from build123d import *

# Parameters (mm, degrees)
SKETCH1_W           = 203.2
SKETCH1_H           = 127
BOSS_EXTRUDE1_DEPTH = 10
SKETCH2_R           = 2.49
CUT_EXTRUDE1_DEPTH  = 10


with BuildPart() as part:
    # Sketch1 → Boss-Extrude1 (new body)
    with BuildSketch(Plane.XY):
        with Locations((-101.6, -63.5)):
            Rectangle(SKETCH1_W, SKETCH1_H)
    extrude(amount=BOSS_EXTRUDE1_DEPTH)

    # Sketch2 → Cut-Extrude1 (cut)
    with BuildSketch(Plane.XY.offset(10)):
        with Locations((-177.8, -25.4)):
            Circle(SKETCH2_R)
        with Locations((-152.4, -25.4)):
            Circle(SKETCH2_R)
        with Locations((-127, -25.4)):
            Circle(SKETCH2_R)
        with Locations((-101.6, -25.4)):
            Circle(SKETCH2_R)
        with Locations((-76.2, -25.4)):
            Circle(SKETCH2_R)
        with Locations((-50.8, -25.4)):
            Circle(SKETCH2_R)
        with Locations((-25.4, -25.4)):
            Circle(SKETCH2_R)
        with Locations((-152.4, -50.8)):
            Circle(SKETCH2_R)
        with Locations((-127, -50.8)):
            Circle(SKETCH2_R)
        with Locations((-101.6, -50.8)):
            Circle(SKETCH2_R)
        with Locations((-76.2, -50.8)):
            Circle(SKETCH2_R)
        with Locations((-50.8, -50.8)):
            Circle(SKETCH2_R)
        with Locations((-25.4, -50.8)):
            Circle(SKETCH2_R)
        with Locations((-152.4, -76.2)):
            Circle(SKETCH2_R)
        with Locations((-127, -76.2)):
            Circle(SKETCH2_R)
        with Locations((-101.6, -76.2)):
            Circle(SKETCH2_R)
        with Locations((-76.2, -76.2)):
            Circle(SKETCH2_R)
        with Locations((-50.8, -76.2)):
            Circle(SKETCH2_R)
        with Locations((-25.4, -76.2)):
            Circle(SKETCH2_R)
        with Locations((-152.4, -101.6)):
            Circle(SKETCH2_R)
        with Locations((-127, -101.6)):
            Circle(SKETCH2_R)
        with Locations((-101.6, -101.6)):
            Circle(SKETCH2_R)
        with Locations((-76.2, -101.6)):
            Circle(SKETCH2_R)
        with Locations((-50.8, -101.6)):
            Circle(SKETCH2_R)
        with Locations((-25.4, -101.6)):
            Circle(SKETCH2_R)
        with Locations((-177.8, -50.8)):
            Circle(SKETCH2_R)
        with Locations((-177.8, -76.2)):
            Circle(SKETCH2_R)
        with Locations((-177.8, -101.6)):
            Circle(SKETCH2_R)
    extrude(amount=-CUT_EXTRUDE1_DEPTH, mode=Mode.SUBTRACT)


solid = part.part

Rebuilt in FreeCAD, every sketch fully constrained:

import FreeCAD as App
import Part
import Sketcher

V = App.Vector
Q = App.Units.Quantity

doc = App.newDocument("Part")
body = doc.addObject("PartDesign::Body", "Body")

sketch1 = body.newObject("Sketcher::SketchObject", "Sketch")
sketch1.AttachmentSupport = (doc.getObject("XY_Plane"), [""])
sketch1.MapMode = "FlatFace"
sketch1.addGeometry([
    Part.LineSegment(V(-203, 0, 0), V(-203, -127, 0)),
    Part.LineSegment(V(-203, -127, 0), V(0, -127, 0)),
    Part.LineSegment(V(0, -127, 0), V(0, 0, 0)),
    Part.LineSegment(V(0, 0, 0), V(-203, 0, 0)),
], False)
sketch1.addConstraint([
    Sketcher.Constraint("Coincident", 0, 2, 1, 1),
    Sketcher.Constraint("Coincident", 1, 2, 2, 1),
    Sketcher.Constraint("Coincident", 2, 2, 3, 1),
    Sketcher.Constraint("Coincident", 3, 2, 0, 1),
    Sketcher.Constraint("Vertical", 0),
    Sketcher.Constraint("Horizontal", 1),
    Sketcher.Constraint("Vertical", 2),
    Sketcher.Constraint("Horizontal", 3),
    Sketcher.Constraint("Coincident", 2, 2, -1, 1),
    Sketcher.Constraint("DistanceX", 1, 1, 1, 2, Q("8 in")),
    Sketcher.Constraint("DistanceY", 0, 2, 0, 1, Q("5 in")),
])
pad1 = body.newObject("PartDesign::Pad", "Pad")
pad1.Profile = sketch1
pad1.Length = 10

sketch2 = body.newObject("Sketcher::SketchObject", "Sketch001")
sketch2.AttachmentSupport = (doc.getObject("XY_Plane"), [""])
sketch2.MapMode = "FlatFace"
sketch2.AttachmentOffset = App.Placement(V(0, 0, 10), App.Rotation())
sketch2.addGeometry([
    Part.Circle(V(-177.8, -25.4, 0), V(0, 0, 1), 2.5),
    Part.Circle(V(-152.4, -25.4, 0), V(0, 0, 1), 2.5),
    Part.Circle(V(-127, -25.4, 0), V(0, 0, 1), 2.5),
    Part.Circle(V(-101.6, -25.4, 0), V(0, 0, 1), 2.5),
    Part.Circle(V(-76.2, -25.4, 0), V(0, 0, 1), 2.5),
    Part.Circle(V(-50.8, -25.4, 0), V(0, 0, 1), 2.5),
    Part.Circle(V(-25.4, -25.4, 0), V(0, 0, 1), 2.5),
    Part.Circle(V(-152.4, -50.8, 0), V(0, 0, 1), 2.5),
    Part.Circle(V(-127, -50.8, 0), V(0, 0, 1), 2.5),
    Part.Circle(V(-101.6, -50.8, 0), V(0, 0, 1), 2.5),
    Part.Circle(V(-76.2, -50.8, 0), V(0, 0, 1), 2.5),
    Part.Circle(V(-50.8, -50.8, 0), V(0, 0, 1), 2.5),
    Part.Circle(V(-25.4, -50.8, 0), V(0, 0, 1), 2.5),
    Part.Circle(V(-152.4, -76.2, 0), V(0, 0, 1), 2.5),
    Part.Circle(V(-127, -76.2, 0), V(0, 0, 1), 2.5),
    Part.Circle(V(-101.6, -76.2, 0), V(0, 0, 1), 2.5),
    Part.Circle(V(-76.2, -76.2, 0), V(0, 0, 1), 2.5),
    Part.Circle(V(-50.8, -76.2, 0), V(0, 0, 1), 2.5),
    Part.Circle(V(-25.4, -76.2, 0), V(0, 0, 1), 2.5),
    Part.Circle(V(-152.4, -101.6, 0), V(0, 0, 1), 2.5),
    Part.Circle(V(-127, -101.6, 0), V(0, 0, 1), 2.5),
    Part.Circle(V(-101.6, -101.6, 0), V(0, 0, 1), 2.5),
    Part.Circle(V(-76.2, -101.6, 0), V(0, 0, 1), 2.5),
    Part.Circle(V(-50.8, -101.6, 0), V(0, 0, 1), 2.5),
    Part.Circle(V(-25.4, -101.6, 0), V(0, 0, 1), 2.5),
    Part.Circle(V(-177.8, -50.8, 0), V(0, 0, 1), 2.5),
    Part.Circle(V(-177.8, -76.2, 0), V(0, 0, 1), 2.5),
    Part.Circle(V(-177.8, -101.6, 0), V(0, 0, 1), 2.5),
], False)
sketch2.addConstraint([
    Sketcher.Constraint("Equal", 0, 1),
    Sketcher.Constraint("Equal", 1, 2),
    Sketcher.Constraint("Equal", 2, 3),
    Sketcher.Constraint("Equal", 3, 4),
    Sketcher.Constraint("Equal", 4, 5),
    Sketcher.Constraint("Equal", 5, 6),
    Sketcher.Constraint("Equal", 6, 7),
    Sketcher.Constraint("Equal", 7, 8),
    Sketcher.Constraint("Equal", 8, 9),
    Sketcher.Constraint("Equal", 9, 10),
    Sketcher.Constraint("Equal", 10, 11),
    Sketcher.Constraint("Equal", 11, 12),
    Sketcher.Constraint("Equal", 12, 13),
    Sketcher.Constraint("Equal", 13, 14),
    Sketcher.Constraint("Equal", 14, 15),
    Sketcher.Constraint("Equal", 15, 16),
    Sketcher.Constraint("Equal", 16, 17),
    Sketcher.Constraint("Equal", 17, 18),
    Sketcher.Constraint("Equal", 18, 19),
    Sketcher.Constraint("Equal", 19, 20),
    Sketcher.Constraint("Equal", 20, 21),
    Sketcher.Constraint("Equal", 21, 22),
    Sketcher.Constraint("Equal", 22, 23),
    Sketcher.Constraint("Equal", 23, 24),
    Sketcher.Constraint("Equal", 24, 25),
    Sketcher.Constraint("Equal", 25, 26),
    Sketcher.Constraint("Equal", 26, 27),
    Sketcher.Constraint("Horizontal", 0, 3, 1, 3),
    Sketcher.Constraint("Horizontal", 1, 3, 2, 3),
    Sketcher.Constraint("Horizontal", 2, 3, 3, 3),
    Sketcher.Constraint("Horizontal", 3, 3, 4, 3),
    Sketcher.Constraint("Horizontal", 4, 3, 5, 3),
    Sketcher.Constraint("Horizontal", 5, 3, 6, 3),
    Sketcher.Constraint("Horizontal", 7, 3, 8, 3),
    Sketcher.Constraint("Horizontal", 8, 3, 9, 3),
    Sketcher.Constraint("Horizontal", 9, 3, 10, 3),
    Sketcher.Constraint("Horizontal", 10, 3, 11, 3),
    Sketcher.Constraint("Horizontal", 11, 3, 12, 3),
    Sketcher.Constraint("Horizontal", 13, 3, 14, 3),
    Sketcher.Constraint("Horizontal", 14, 3, 15, 3),
    Sketcher.Constraint("Horizontal", 15, 3, 16, 3),
    Sketcher.Constraint("Horizontal", 16, 3, 17, 3),
    Sketcher.Constraint("Horizontal", 17, 3, 18, 3),
    Sketcher.Constraint("Horizontal", 19, 3, 20, 3),
    Sketcher.Constraint("Horizontal", 20, 3, 21, 3),
    Sketcher.Constraint("Horizontal", 21, 3, 22, 3),
    Sketcher.Constraint("Horizontal", 22, 3, 23, 3),
    Sketcher.Constraint("Horizontal", 23, 3, 24, 3),
    Sketcher.Constraint("Horizontal", 12, 3, 25, 3),
    Sketcher.Constraint("Horizontal", 18, 3, 26, 3),
    Sketcher.Constraint("Horizontal", 24, 3, 27, 3),
    Sketcher.Constraint("Vertical", 1, 3, 7, 3),
    Sketcher.Constraint("Vertical", 2, 3, 8, 3),
    Sketcher.Constraint("Vertical", 3, 3, 9, 3),
    Sketcher.Constraint("Vertical", 4, 3, 10, 3),
    Sketcher.Constraint("Vertical", 5, 3, 11, 3),
    Sketcher.Constraint("Vertical", 6, 3, 12, 3),
    Sketcher.Constraint("Vertical", 7, 3, 13, 3),
    Sketcher.Constraint("Vertical", 8, 3, 14, 3),
    Sketcher.Constraint("Vertical", 9, 3, 15, 3),
    Sketcher.Constraint("Vertical", 10, 3, 16, 3),
    Sketcher.Constraint("Vertical", 11, 3, 17, 3),
    Sketcher.Constraint("Vertical", 12, 3, 18, 3),
    Sketcher.Constraint("Vertical", 13, 3, 19, 3),
    Sketcher.Constraint("Vertical", 14, 3, 20, 3),
    Sketcher.Constraint("Vertical", 15, 3, 21, 3),
    Sketcher.Constraint("Vertical", 16, 3, 22, 3),
    Sketcher.Constraint("Vertical", 17, 3, 23, 3),
    Sketcher.Constraint("Vertical", 18, 3, 24, 3),
    Sketcher.Constraint("Vertical", 0, 3, 25, 3),
    Sketcher.Constraint("Vertical", 25, 3, 26, 3),
    Sketcher.Constraint("Vertical", 26, 3, 27, 3),
    Sketcher.Constraint("DistanceX", 0, 3, -1, 1, Q("7 in")),
    Sketcher.Constraint("DistanceY", 0, 3, -1, 1, Q("1 in")),
    Sketcher.Constraint("DistanceX", 1, 3, -1, 1, Q("6 in")),
    Sketcher.Constraint("DistanceX", 2, 3, -1, 1, Q("5 in")),
    Sketcher.Constraint("DistanceX", 3, 3, -1, 1, Q("4 in")),
    Sketcher.Constraint("DistanceX", 4, 3, -1, 1, Q("3 in")),
    Sketcher.Constraint("DistanceX", 5, 3, -1, 1, Q("2 in")),
    Sketcher.Constraint("DistanceX", 6, 3, -1, 1, Q("1 in")),
    Sketcher.Constraint("DistanceY", 7, 3, -1, 1, Q("2 in")),
    Sketcher.Constraint("DistanceY", 13, 3, -1, 1, Q("3 in")),
    Sketcher.Constraint("DistanceY", 19, 3, -1, 1, Q("4 in")),
    Sketcher.Constraint("Diameter", 0, 4.98),
])
pocket1 = body.newObject("PartDesign::Pocket", "Pocket")
pocket1.Profile = sketch2
pocket1.Length = 10

doc.recompute()
